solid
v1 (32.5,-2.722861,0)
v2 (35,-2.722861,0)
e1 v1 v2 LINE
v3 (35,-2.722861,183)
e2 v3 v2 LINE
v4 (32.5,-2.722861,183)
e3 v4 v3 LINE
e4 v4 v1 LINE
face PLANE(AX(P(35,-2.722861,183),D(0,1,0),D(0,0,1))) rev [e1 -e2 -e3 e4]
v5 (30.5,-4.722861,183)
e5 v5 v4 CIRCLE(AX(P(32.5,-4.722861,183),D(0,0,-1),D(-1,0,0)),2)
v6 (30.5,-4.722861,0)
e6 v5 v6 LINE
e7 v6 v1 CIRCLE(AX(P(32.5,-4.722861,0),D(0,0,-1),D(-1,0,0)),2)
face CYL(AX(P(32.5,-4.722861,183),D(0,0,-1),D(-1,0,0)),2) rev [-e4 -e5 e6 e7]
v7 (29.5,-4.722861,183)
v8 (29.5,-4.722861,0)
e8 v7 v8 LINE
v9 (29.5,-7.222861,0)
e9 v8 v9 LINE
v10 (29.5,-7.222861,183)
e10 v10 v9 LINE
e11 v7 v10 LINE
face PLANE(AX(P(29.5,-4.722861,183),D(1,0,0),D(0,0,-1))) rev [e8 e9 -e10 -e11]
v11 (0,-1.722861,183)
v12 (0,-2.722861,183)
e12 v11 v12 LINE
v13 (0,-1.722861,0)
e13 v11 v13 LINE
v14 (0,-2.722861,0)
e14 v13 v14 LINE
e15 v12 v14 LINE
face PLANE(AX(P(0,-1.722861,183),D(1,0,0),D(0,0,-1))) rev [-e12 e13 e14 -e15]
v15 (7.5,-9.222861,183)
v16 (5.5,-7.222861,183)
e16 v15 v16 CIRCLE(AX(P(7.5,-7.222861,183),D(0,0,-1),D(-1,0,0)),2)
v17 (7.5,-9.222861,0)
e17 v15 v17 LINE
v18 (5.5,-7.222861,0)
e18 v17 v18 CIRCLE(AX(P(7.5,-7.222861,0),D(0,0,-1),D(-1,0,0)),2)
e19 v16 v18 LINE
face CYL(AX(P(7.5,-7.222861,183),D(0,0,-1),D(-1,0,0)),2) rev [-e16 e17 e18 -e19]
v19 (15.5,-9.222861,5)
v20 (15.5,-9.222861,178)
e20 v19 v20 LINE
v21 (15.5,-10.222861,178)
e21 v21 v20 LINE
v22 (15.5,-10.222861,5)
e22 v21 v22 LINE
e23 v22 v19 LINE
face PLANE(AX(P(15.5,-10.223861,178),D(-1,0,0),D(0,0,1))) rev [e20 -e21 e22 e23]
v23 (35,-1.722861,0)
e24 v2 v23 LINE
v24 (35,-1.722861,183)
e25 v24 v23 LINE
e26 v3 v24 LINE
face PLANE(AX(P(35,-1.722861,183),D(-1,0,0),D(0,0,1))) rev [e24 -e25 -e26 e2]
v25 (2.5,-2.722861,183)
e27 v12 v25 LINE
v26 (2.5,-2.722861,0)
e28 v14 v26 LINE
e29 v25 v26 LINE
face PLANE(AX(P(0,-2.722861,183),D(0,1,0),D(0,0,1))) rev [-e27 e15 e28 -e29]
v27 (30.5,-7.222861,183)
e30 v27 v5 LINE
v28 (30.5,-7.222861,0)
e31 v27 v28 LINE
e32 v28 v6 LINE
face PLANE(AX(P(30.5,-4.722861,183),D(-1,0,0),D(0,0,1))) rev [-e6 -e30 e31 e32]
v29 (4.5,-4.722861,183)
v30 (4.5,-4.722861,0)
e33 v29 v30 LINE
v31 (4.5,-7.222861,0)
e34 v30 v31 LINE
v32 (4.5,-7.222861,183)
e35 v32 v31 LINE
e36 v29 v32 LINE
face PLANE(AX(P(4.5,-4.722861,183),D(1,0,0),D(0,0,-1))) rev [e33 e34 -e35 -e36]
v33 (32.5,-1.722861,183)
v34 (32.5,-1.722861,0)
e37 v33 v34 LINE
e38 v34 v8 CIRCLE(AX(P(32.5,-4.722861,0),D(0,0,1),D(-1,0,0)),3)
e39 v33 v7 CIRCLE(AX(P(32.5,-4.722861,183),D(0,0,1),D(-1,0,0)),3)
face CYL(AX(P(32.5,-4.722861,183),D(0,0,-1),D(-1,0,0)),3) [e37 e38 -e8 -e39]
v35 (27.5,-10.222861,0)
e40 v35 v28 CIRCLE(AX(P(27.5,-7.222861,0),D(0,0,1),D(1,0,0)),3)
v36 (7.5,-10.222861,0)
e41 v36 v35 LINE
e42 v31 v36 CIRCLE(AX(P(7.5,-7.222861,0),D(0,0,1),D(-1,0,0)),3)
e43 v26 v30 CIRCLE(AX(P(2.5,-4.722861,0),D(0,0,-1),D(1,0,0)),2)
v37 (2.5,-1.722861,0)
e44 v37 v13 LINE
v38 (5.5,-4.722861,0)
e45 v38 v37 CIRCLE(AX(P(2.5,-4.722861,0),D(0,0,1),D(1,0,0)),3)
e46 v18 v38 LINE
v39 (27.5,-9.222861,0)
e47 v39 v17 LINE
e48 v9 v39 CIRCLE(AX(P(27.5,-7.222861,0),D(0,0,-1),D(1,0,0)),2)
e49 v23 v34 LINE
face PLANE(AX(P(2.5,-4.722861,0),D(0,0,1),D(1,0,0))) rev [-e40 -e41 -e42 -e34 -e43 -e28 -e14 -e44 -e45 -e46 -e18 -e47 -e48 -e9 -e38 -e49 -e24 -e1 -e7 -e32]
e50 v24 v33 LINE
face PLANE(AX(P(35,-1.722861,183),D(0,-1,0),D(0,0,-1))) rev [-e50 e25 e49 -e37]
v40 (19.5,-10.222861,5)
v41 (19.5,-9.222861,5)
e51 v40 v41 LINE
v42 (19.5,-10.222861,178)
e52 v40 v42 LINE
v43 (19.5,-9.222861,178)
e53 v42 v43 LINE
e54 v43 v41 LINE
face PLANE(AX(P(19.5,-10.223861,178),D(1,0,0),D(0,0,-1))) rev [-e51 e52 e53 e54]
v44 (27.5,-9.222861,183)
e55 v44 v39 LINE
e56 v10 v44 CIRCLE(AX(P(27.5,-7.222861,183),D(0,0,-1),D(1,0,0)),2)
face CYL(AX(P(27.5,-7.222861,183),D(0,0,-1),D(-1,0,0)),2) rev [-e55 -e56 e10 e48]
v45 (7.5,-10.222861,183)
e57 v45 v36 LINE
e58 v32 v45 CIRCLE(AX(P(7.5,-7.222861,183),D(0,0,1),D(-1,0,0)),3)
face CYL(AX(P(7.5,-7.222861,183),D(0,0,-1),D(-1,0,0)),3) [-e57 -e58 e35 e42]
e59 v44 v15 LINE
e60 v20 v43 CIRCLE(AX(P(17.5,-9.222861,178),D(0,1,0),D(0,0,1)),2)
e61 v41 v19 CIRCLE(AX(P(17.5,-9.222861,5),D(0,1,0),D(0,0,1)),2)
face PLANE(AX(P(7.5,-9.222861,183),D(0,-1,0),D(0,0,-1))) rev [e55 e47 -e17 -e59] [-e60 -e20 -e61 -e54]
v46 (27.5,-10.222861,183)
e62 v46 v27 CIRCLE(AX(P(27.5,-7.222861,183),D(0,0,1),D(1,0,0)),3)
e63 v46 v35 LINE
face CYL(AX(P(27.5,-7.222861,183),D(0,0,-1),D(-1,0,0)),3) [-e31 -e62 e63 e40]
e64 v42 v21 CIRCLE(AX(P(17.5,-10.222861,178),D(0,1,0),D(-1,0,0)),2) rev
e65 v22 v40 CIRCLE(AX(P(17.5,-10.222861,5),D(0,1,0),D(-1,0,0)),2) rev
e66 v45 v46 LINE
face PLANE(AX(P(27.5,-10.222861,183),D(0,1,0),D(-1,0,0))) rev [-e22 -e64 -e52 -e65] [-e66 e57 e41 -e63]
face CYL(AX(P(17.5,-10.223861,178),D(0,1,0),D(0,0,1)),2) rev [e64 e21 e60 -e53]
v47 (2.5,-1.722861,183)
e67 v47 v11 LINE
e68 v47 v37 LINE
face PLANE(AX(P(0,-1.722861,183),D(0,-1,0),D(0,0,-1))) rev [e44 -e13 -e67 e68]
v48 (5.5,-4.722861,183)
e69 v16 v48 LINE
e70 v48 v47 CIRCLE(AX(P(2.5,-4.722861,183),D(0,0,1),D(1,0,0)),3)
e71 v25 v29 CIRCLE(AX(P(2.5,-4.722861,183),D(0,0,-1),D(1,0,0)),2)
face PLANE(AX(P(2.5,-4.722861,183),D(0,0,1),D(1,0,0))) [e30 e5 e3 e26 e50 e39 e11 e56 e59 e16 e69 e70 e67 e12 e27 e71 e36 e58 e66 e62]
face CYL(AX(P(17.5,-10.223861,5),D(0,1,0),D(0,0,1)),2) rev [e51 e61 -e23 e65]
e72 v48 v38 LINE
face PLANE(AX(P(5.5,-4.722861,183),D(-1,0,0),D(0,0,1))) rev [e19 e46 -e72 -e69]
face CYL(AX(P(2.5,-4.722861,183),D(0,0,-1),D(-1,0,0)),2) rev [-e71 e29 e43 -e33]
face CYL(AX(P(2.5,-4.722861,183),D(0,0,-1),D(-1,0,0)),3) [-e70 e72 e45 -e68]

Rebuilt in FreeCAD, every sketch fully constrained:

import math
import FreeCAD as App
import Part
import Sketcher

V = App.Vector

doc = App.newDocument("Part")
body = doc.addObject("PartDesign::Body", "Body")

# Sketch on XY plane
sketch1 = body.newObject("Sketcher::SketchObject", "Sketch")
sketch1.AttachmentSupport = (doc.getObject("XY_Plane"), [""])
sketch1.MapMode = "FlatFace"
sketch1.addGeometry([
    Part.LineSegment(V(0, -2.7, 0), V(2.5, -2.7, 0)),  # 0
    Part.ArcOfCircle(Part.Circle(V(2.5, -4.7, 0), V(0, 0, 1), 2), math.radians(0), math.radians(90)),  # 1
    Part.LineSegment(V(4.5, -4.7, 0), V(4.5, -7.2, 0)),  # 2
    Part.ArcOfCircle(Part.Circle(V(7.5, -7.2, 0), V(0, 0, 1), 3), math.radians(180), math.radians(270)),  # 3
    Part.LineSegment(V(7.5, -10.2, 0), V(27.5, -10.2, 0)),  # 4
    Part.ArcOfCircle(Part.Circle(V(27.5, -7.2, 0), V(0, 0, 1), 3), math.radians(-90), math.radians(0)),  # 5
    Part.LineSegment(V(30.5, -7.2, 0), V(30.5, -4.7, 0)),  # 6
    Part.ArcOfCircle(Part.Circle(V(32.5, -4.7, 0), V(0, 0, 1), 2), math.radians(90), math.radians(180)),  # 7
    Part.LineSegment(V(32.5, -2.7, 0), V(35, -2.7, 0)),  # 8
    Part.LineSegment(V(35, -2.7, 0), V(35, -1.7, 0)),  # 9
    Part.LineSegment(V(35, -1.7, 0), V(32.5, -1.7, 0)),  # 10
    Part.ArcOfCircle(Part.Circle(V(32.5, -4.7, 0), V(0, 0, 1), 3), math.radians(90), math.radians(180)),  # 11
    Part.LineSegment(V(29.5, -4.7, 0), V(29.5, -7.2, 0)),  # 12
    Part.ArcOfCircle(Part.Circle(V(27.5, -7.2, 0), V(0, 0, 1), 2), math.radians(-90), math.radians(0)),  # 13
    Part.LineSegment(V(27.5, -9.2, 0), V(7.5, -9.2, 0)),  # 14
    Part.ArcOfCircle(Part.Circle(V(7.5, -7.2, 0), V(0, 0, 1), 2), math.radians(180), math.radians(270)),  # 15
    Part.LineSegment(V(5.5, -7.2, 0), V(5.5, -4.7, 0)),  # 16
    Part.ArcOfCircle(Part.Circle(V(2.5, -4.7, 0), V(0, 0, 1), 3), math.radians(0), math.radians(90)),  # 17
    Part.LineSegment(V(2.5, -1.7, 0), V(0, -1.7, 0)),  # 18
    Part.LineSegment(V(0, -1.7, 0), V(0, -2.7, 0)),  # 19
], False)
sketch1.addConstraint([
    Sketcher.Constraint("Tangent", 0, 2, 1, 2),
    Sketcher.Constraint("Tangent", 1, 1, 2, 1),
    Sketcher.Constraint("Tangent", 2, 2, 3, 1),
    Sketcher.Constraint("Tangent", 3, 2, 4, 1),
    Sketcher.Constraint("Tangent", 4, 2, 5, 1),
    Sketcher.Constraint("Tangent", 5, 2, 6, 1),
    Sketcher.Constraint("Tangent", 6, 2, 7, 2),
    Sketcher.Constraint("Tangent", 7, 1, 8, 1),
    Sketcher.Constraint("Coincident", 8, 2, 9, 1),
    Sketcher.Constraint("Coincident", 9, 2, 10, 1),
    Sketcher.Constraint("Tangent", 10, 2, 11, 1),
    Sketcher.Constraint("Tangent", 11, 2, 12, 1),
    Sketcher.Constraint("Tangent", 12, 2, 13, 2),
    Sketcher.Constraint("Tangent", 13, 1, 14, 1),
    Sketcher.Constraint("Tangent", 14, 2, 15, 2),
    Sketcher.Constraint("Tangent", 15, 1, 16, 1),
    Sketcher.Constraint("Tangent", 16, 2, 17, 1),
    Sketcher.Constraint("Tangent", 17, 2, 18, 1),
    Sketcher.Constraint("Coincident", 18, 2, 19, 1),
    Sketcher.Constraint("Coincident", 19, 2, 0, 1),
    Sketcher.Constraint("Horizontal", 0),
    Sketcher.Constraint("Vertical", 2),
    Sketcher.Constraint("Horizontal", 4),
    Sketcher.Constraint("Vertical", 6),
    Sketcher.Constraint("Horizontal", 8),
    Sketcher.Constraint("Vertical", 9),
    Sketcher.Constraint("Horizontal", 10),
    Sketcher.Constraint("Vertical", 12),
    Sketcher.Constraint("Horizontal", 14),
    Sketcher.Constraint("Vertical", 16),
    Sketcher.Constraint("Horizontal", 18),
    Sketcher.Constraint("Vertical", 19),
    Sketcher.Constraint("Coincident", 11, 3, 7, 3),
    Sketcher.Constraint("Coincident", 13, 3, 5, 3),
    Sketcher.Constraint("Coincident", 15, 3, 3, 3),
    Sketcher.Constraint("Coincident", 17, 3, 1, 3),
    Sketcher.Constraint("Equal", 3, 5),
    Sketcher.Constraint("Equal", 1, 7),
    Sketcher.Constraint("Equal", 5, 11),
    Sketcher.Constraint("PointOnObject", 18, 2, -2),
    Sketcher.Constraint("Horizontal", 1, 3, 7, 3),
    Sketcher.Constraint("Equal", 0, 8),
    Sketcher.Constraint("Equal", 18, 2),
    Sketcher.Constraint("Radius", 1, 2.0),
    Sketcher.Constraint("Radius", 3, 3.0),
    Sketcher.Constraint("DistanceX", 4, 1, 4, 2, 20.0),
    Sketcher.Constraint("DistanceX", 0, 1, 0, 2, 2.5),
    Sketcher.Constraint("DistanceY", 1, 3, -1, 1, 4.722861),
])
pad1 = body.newObject("PartDesign::Pad", "Pad")
pad1.Profile = sketch1
pad1.Length = 183

# Sketch on XZ plane
sketch2 = body.newObject("Sketcher::SketchObject", "Sketch001")
sketch2.AttachmentSupport = (doc.getObject("XZ_Plane"), [""])
sketch2.MapMode = "FlatFace"
sketch2.AttachmentOffset = App.Placement(V(0, 0, 9.222861), App.Rotation())
sketch2.addGeometry([
    Part.LineSegment(V(15.5, 5, 0), V(15.5, 178, 0)),
    Part.ArcOfCircle(Part.Circle(V(17.5, 178, 0), V(0, 0, 1), 2), math.radians(0), math.radians(180)),
    Part.LineSegment(V(19.5, 178, 0), V(19.5, 5, 0)),
    Part.ArcOfCircle(Part.Circle(V(17.5, 5, 0), V(0, 0, 1), 2), math.radians(180), math.radians(360)),
], False)
sketch2.addConstraint([
    Sketcher.Constraint("Tangent", 0, 2, 1, 2),
    Sketcher.Constraint("Tangent", 1, 1, 2, 1),
    Sketcher.Constraint("Tangent", 2, 2, 3, 2),
    Sketcher.Constraint("Tangent", 3, 1, 0, 1),
    Sketcher.Constraint("Vertical", 0),
    Sketcher.Constraint("Vertical", 2),
    Sketcher.Constraint("Radius", 1, 2.0),
    Sketcher.Constraint("DistanceY", 0, 1, 0, 2, 173.0),
    Sketcher.Constraint("DistanceY", -1, 1, 1, 3, 178.0),
    Sketcher.Constraint("DistanceX", -1, 1, 1, 3, 17.5),
])
pocket1 = body.newObject("PartDesign::Pocket", "Pocket")
pocket1.Profile = sketch2
pocket1.Type = "UpToFirst"
pocket1.Reversed = True

doc.recompute()
